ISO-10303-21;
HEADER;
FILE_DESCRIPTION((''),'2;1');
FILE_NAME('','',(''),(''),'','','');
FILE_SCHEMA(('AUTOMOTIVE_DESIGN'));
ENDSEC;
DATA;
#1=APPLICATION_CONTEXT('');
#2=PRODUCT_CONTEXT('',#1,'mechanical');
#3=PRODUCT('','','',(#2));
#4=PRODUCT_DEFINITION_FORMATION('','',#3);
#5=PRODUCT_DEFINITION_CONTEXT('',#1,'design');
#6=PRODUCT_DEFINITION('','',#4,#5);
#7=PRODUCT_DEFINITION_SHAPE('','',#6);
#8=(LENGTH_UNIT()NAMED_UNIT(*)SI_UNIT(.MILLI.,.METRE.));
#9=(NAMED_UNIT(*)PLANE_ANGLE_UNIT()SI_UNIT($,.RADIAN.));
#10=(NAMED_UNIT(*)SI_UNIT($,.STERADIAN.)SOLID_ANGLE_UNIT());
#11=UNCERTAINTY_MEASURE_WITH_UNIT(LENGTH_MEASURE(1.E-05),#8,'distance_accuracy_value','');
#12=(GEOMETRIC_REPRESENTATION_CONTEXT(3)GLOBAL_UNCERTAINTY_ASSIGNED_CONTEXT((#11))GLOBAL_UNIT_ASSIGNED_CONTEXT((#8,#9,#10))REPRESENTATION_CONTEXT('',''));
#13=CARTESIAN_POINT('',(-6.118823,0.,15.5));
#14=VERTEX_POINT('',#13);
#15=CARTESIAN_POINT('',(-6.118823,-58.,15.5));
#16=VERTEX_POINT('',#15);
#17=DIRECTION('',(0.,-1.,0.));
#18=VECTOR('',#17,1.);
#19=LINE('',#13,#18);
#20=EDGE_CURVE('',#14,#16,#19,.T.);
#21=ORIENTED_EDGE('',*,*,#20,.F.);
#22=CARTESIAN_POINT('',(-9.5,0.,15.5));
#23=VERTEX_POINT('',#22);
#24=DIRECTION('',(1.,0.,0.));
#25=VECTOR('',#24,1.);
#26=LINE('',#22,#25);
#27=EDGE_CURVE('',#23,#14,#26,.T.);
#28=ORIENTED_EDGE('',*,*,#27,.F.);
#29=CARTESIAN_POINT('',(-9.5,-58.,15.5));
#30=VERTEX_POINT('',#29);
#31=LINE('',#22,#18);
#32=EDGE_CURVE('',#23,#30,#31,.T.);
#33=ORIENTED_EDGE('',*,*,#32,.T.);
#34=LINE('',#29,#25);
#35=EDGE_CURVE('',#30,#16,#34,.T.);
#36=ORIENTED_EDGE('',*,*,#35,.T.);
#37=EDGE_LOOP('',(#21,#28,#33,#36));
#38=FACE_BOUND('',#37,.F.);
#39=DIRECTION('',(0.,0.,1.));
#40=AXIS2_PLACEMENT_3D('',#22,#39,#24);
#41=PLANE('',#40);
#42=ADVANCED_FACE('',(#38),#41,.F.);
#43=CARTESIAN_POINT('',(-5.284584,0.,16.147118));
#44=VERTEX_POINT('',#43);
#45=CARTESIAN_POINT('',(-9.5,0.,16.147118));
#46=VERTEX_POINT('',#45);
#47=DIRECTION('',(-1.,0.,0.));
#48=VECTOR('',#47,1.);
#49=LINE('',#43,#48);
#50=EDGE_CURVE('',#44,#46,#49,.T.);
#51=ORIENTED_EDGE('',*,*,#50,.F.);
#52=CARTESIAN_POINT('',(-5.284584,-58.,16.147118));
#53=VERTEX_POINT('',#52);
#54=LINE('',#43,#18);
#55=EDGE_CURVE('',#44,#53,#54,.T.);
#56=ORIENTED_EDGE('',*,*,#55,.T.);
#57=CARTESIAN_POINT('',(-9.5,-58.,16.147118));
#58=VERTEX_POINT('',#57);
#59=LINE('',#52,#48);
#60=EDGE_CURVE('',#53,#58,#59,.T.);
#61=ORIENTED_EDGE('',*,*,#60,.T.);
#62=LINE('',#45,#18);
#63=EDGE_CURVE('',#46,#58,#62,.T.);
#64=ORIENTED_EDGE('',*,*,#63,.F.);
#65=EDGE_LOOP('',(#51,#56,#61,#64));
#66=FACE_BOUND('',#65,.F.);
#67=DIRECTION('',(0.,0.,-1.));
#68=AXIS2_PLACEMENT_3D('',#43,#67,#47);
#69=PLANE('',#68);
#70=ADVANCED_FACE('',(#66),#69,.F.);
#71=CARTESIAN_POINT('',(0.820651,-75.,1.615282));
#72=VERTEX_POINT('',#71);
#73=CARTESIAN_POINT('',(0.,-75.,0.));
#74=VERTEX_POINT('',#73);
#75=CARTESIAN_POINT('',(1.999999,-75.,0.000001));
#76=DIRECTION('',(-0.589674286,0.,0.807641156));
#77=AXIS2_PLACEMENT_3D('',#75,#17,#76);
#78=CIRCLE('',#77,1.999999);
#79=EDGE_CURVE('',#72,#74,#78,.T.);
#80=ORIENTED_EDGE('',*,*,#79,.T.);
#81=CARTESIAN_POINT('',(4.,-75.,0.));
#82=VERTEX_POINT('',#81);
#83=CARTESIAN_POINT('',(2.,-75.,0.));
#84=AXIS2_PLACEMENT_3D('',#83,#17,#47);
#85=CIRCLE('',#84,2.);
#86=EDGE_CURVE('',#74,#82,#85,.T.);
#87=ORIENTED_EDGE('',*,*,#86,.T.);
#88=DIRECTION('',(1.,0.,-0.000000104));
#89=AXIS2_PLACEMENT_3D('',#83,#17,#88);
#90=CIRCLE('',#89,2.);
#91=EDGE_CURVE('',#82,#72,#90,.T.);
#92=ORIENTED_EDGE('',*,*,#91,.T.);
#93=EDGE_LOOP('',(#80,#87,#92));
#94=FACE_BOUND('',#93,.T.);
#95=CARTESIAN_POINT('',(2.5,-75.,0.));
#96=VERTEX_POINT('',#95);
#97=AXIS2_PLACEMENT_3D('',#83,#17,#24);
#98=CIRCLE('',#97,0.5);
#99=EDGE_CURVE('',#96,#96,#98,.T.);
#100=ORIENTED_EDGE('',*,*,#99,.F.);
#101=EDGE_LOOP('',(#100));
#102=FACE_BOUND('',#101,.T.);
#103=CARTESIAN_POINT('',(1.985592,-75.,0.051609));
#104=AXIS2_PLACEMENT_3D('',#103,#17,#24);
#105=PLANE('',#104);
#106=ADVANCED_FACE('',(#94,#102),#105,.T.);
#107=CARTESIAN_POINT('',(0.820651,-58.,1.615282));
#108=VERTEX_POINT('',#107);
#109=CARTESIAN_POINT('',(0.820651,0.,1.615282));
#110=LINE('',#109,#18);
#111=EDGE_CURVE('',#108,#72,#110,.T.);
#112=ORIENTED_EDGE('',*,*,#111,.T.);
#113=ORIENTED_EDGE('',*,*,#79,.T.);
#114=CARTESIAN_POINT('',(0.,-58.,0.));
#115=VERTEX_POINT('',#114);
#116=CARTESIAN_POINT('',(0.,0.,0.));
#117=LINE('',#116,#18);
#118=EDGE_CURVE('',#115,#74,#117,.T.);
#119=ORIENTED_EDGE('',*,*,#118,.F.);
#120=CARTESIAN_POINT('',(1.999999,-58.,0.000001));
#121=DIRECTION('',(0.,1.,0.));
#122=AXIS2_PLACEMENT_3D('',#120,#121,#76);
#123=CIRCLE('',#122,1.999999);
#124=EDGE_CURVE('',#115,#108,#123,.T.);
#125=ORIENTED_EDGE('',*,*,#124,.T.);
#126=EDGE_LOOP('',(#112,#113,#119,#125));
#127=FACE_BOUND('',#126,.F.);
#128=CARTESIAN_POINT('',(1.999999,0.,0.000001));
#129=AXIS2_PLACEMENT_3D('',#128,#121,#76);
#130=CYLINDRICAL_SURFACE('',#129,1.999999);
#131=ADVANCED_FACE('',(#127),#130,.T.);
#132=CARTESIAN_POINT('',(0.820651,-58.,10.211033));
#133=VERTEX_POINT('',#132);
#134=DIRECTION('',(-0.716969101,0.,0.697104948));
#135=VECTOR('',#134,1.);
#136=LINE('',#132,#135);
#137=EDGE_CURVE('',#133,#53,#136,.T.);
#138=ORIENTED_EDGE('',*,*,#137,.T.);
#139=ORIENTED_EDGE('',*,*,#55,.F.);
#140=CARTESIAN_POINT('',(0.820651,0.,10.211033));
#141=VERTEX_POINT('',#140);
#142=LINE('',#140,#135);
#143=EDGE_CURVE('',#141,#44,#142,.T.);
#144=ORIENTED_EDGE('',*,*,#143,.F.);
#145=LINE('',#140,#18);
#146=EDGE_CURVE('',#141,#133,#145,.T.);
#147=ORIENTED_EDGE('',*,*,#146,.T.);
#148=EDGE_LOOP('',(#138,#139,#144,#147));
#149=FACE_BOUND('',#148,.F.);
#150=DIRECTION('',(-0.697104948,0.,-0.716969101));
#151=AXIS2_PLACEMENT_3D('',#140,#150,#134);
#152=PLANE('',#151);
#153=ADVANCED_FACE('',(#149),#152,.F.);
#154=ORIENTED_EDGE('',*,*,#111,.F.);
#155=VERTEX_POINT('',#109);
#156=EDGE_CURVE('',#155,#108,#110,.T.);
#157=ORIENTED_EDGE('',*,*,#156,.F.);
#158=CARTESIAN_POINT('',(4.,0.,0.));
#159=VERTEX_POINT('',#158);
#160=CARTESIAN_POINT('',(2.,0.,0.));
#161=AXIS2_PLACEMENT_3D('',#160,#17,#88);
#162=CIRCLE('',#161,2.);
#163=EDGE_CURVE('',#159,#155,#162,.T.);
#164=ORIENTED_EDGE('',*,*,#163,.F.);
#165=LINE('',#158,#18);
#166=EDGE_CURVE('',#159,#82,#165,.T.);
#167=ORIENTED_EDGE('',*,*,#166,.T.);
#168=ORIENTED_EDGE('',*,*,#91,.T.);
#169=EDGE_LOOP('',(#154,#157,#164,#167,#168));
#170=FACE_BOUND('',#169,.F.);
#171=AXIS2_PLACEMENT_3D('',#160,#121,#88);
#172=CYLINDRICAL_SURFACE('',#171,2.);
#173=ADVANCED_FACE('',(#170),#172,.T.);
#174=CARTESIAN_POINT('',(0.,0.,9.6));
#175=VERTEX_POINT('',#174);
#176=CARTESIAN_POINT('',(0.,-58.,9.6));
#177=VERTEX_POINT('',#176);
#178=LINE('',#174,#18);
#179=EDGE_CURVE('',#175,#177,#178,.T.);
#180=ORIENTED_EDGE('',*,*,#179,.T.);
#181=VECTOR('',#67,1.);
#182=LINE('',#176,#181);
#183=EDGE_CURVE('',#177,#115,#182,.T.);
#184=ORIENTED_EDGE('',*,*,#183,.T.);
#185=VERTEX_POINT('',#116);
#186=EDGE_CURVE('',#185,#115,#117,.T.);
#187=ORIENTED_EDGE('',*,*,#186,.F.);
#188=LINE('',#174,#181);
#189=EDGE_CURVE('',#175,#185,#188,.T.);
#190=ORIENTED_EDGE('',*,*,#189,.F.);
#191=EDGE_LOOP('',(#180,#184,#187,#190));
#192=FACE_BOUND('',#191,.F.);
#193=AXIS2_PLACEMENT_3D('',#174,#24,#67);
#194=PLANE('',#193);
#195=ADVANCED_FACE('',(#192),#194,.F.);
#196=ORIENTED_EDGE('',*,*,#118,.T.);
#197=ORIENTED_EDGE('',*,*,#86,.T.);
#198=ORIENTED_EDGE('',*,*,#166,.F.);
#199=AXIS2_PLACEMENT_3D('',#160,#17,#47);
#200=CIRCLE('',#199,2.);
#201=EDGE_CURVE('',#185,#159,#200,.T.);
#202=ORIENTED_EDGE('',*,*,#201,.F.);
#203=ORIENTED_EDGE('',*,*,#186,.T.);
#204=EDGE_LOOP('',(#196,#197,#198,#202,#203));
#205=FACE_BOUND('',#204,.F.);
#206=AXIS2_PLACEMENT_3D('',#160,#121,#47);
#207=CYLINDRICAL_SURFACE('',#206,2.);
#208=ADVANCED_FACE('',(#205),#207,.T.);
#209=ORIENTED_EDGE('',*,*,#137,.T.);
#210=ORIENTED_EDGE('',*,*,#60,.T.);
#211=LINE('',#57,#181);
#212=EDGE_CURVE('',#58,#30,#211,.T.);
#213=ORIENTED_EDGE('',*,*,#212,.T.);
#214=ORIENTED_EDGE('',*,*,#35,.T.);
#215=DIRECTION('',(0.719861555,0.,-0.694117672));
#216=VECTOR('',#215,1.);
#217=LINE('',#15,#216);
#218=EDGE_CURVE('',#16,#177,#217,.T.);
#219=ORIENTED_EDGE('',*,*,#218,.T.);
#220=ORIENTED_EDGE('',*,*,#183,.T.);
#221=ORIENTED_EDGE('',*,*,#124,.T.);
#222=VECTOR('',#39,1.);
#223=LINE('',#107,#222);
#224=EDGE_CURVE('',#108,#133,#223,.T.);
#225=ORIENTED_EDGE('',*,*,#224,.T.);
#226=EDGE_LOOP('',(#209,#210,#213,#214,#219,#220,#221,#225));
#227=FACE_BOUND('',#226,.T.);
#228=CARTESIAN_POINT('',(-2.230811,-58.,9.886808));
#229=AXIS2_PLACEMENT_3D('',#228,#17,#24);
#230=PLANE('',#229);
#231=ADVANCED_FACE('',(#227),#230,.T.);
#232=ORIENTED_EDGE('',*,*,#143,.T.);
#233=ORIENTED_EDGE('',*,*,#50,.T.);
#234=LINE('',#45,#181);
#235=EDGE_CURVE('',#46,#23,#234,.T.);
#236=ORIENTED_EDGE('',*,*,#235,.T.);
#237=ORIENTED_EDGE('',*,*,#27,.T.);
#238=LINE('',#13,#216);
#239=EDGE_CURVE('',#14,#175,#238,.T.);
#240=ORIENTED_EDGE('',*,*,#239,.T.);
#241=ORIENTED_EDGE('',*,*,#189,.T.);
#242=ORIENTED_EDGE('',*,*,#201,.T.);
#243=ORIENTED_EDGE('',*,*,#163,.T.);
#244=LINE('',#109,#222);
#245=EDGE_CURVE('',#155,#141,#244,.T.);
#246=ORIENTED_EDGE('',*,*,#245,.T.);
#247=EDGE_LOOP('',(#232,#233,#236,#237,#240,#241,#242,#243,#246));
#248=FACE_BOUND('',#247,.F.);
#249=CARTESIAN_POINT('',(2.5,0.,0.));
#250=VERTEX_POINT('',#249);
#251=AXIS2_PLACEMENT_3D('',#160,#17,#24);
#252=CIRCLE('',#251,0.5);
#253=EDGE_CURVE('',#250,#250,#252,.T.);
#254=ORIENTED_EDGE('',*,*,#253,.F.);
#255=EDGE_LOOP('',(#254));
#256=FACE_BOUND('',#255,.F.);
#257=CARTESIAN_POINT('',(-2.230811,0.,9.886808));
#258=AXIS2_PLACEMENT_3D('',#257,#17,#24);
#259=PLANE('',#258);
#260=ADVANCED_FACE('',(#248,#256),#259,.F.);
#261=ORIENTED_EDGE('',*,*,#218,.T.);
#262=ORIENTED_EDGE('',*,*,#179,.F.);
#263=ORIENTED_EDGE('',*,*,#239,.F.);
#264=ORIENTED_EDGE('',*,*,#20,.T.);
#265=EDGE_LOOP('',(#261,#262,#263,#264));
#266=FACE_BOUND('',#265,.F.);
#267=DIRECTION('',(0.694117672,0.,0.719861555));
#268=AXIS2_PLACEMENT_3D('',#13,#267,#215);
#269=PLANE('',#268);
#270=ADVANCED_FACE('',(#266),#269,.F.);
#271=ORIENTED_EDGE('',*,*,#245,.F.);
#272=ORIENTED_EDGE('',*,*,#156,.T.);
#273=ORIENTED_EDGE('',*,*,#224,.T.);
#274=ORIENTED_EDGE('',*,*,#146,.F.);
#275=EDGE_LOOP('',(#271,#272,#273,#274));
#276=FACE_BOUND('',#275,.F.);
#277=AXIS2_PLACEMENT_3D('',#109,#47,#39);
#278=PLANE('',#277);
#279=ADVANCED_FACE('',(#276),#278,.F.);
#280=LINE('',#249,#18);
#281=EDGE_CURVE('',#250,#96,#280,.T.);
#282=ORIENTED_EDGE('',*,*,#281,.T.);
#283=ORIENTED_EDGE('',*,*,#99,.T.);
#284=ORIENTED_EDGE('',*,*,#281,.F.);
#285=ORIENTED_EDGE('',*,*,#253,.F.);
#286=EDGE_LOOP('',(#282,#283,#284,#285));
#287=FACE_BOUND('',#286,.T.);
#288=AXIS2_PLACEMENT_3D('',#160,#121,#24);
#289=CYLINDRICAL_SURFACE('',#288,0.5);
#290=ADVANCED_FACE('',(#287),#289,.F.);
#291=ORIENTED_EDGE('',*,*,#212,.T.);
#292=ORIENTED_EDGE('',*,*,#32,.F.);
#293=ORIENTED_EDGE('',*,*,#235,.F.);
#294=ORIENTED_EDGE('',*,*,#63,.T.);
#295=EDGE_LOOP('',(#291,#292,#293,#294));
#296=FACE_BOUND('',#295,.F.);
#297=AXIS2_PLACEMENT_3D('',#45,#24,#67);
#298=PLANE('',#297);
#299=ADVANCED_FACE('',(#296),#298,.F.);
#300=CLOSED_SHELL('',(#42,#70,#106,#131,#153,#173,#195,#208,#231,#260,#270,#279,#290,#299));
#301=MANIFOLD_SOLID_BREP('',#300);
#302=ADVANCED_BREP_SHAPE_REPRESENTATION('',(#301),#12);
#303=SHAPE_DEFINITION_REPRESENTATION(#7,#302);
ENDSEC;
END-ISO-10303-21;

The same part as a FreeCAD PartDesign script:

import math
import FreeCAD as App
import Part
import Sketcher

doc = App.newDocument("Part")
body = doc.addObject("PartDesign::Body", "Body")

# Sketch on XZ plane
sketch1 = body.newObject("Sketcher::SketchObject", "Sketch")
sketch1.AttachmentSupport = (doc.getObject("XZ_Plane"), [""])
sketch1.MapMode = "FlatFace"
sketch1.addGeometry(Part.ArcOfCircle(Part.Circle(App.Vector(2, 0, 0), App.Vector(0, 0, 1), 2), math.radians(126), math.radians(180)), False)
sketch1.addGeometry(Part.ArcOfCircle(Part.Circle(App.Vector(2, 0, 0), App.Vector(0, 0, 1), 2), math.radians(180), math.radians(360)), False)
sketch1.addGeometry(Part.ArcOfCircle(Part.Circle(App.Vector(2, 0, 0), App.Vector(0, 0, 1), 2), math.radians(0), math.radians(126)), False)
sketch1.addGeometry(Part.Circle(App.Vector(2, 0, 0), App.Vector(0, 0, 1), 0.5), False)
sketch1.addConstraint(Sketcher.Constraint("Tangent", 0, 2, 1, 1))
sketch1.addConstraint(Sketcher.Constraint("Tangent", 1, 2, 2, 1))
sketch1.addConstraint(Sketcher.Constraint("Tangent", 2, 2, 0, 1))
sketch1.addConstraint(Sketcher.Constraint("Coincident", 0, 2, -1, 1))
sketch1.addConstraint(Sketcher.Constraint("Coincident", 3, 3, 0, 3))
sketch1.addConstraint(Sketcher.Constraint("PointOnObject", 0, 3, -1))
sketch1.addConstraint(Sketcher.Constraint("PointOnObject", 1, 2, -1))
sketch1.addConstraint(Sketcher.Constraint("Diameter", 3, 1.0))
sketch1.addConstraint(Sketcher.Constraint("Radius", 0, 1.999999))
sketch1.addConstraint(Sketcher.Constraint("DistanceX", -1, 1, 2, 2, 0.820651))
pad1 = body.newObject("PartDesign::Pad", "Pad")
pad1.Profile = sketch1
pad1.Length = 75

# Sketch on XZ plane
sketch2 = body.newObject("Sketcher::SketchObject", "Sketch001")
sketch2.AttachmentSupport = (doc.getObject("XZ_Plane"), [""])
sketch2.MapMode = "FlatFace"
sketch2.addGeometry(Part.LineSegment(App.Vector(0, 9.6, 0), App.Vector(0, 0, 0)), False)
sketch2.addGeometry(Part.ArcOfCircle(Part.Circle(App.Vector(2, 0, 0), App.Vector(0, 0, 1), 2), math.radians(180), math.radians(360)), False)
sketch2.addGeometry(Part.ArcOfCircle(Part.Circle(App.Vector(2, 0, 0), App.Vector(0, 0, 1), 2), math.radians(0), math.radians(126)), False)
sketch2.addGeometry(Part.LineSegment(App.Vector(0.8, 1.6, 0), App.Vector(0.8, 10.2, 0)), False)
sketch2.addGeometry(Part.LineSegment(App.Vector(0.8, 10.2, 0), App.Vector(-5.3, 16.1, 0)), False)
sketch2.addGeometry(Part.LineSegment(App.Vector(-5.3, 16.1, 0), App.Vector(-9.5, 16.1, 0)), False)
sketch2.addGeometry(Part.LineSegment(App.Vector(-9.5, 16.1, 0), App.Vector(-9.5, 15.5, 0)), False)
sketch2.addGeometry(Part.LineSegment(App.Vector(-9.5, 15.5, 0), App.Vector(-6.1, 15.5, 0)), False)
sketch2.addGeometry(Part.LineSegment(App.Vector(-6.1, 15.5, 0), App.Vector(0, 9.6, 0)), False)
sketch2.addGeometry(Part.Circle(App.Vector(2, 0, 0), App.Vector(0, 0, 1), 0.5), False)
sketch2.addConstraint(Sketcher.Constraint("Tangent", 0, 2, 1, 1))
sketch2.addConstraint(Sketcher.Constraint("Tangent", 1, 2, 2, 1))
sketch2.addConstraint(Sketcher.Constraint("Coincident", 2, 2, 3, 1))
sketch2.addConstraint(Sketcher.Constraint("Coincident", 3, 2, 4, 1))
sketch2.addConstraint(Sketcher.Constraint("Coincident", 4, 2, 5, 1))
sketch2.addConstraint(Sketcher.Constraint("Coincident", 5, 2, 6, 1))
sketch2.addConstraint(Sketcher.Constraint("Coincident", 6, 2, 7, 1))
sketch2.addConstraint(Sketcher.Constraint("Coincident", 7, 2, 8, 1))
sketch2.addConstraint(Sketcher.Constraint("Coincident", 8, 2, 0, 1))
sketch2.addConstraint(Sketcher.Constraint("Vertical", 0))
sketch2.addConstraint(Sketcher.Constraint("Vertical", 3))
sketch2.addConstraint(Sketcher.Constraint("Horizontal", 5))
sketch2.addConstraint(Sketcher.Constraint("Vertical", 6))
sketch2.addConstraint(Sketcher.Constraint("Horizontal", 7))
sketch2.addConstraint(Sketcher.Constraint("Coincident", 0, 2, -1, 1))
sketch2.addConstraint(Sketcher.Constraint("Coincident", 9, 3, 1, 3))
sketch2.addConstraint(Sketcher.Constraint("Equal", 1, 2))
sketch2.addConstraint(Sketcher.Constraint("PointOnObject", 1, 2, -1))
sketch2.addConstraint(Sketcher.Constraint("Diameter", 9, 1.0))
sketch2.addConstraint(Sketcher.Constraint("Radius", 1, 2.0))
sketch2.addConstraint(Sketcher.Constraint("DistanceY", 0, 2, 0, 1, 9.6))
sketch2.addConstraint(Sketcher.Constraint("Distance", 8, 8.5))
sketch2.addConstraint(Sketcher.Constraint("DistanceX", 5, 2, -1, 1, 9.5))
sketch2.addConstraint(Sketcher.Constraint("DistanceY", -1, 1, 6, 2, 15.5))
sketch2.addConstraint(Sketcher.Constraint("DistanceY", 3, 1, 3, 2, 8.595751))
sketch2.addConstraint(Sketcher.Constraint("Distance", 4, 8.515339))
sketch2.addConstraint(Sketcher.Constraint("DistanceX", 5, 2, 5, 1, 4.215416))
sketch2.addConstraint(Sketcher.Constraint("DistanceY", 6, 2, 6, 1, 0.647118))
pad2 = body.newObject("PartDesign::Pad", "Pad001")
pad2.Profile = sketch2
pad2.Length = 58

doc.recompute()
